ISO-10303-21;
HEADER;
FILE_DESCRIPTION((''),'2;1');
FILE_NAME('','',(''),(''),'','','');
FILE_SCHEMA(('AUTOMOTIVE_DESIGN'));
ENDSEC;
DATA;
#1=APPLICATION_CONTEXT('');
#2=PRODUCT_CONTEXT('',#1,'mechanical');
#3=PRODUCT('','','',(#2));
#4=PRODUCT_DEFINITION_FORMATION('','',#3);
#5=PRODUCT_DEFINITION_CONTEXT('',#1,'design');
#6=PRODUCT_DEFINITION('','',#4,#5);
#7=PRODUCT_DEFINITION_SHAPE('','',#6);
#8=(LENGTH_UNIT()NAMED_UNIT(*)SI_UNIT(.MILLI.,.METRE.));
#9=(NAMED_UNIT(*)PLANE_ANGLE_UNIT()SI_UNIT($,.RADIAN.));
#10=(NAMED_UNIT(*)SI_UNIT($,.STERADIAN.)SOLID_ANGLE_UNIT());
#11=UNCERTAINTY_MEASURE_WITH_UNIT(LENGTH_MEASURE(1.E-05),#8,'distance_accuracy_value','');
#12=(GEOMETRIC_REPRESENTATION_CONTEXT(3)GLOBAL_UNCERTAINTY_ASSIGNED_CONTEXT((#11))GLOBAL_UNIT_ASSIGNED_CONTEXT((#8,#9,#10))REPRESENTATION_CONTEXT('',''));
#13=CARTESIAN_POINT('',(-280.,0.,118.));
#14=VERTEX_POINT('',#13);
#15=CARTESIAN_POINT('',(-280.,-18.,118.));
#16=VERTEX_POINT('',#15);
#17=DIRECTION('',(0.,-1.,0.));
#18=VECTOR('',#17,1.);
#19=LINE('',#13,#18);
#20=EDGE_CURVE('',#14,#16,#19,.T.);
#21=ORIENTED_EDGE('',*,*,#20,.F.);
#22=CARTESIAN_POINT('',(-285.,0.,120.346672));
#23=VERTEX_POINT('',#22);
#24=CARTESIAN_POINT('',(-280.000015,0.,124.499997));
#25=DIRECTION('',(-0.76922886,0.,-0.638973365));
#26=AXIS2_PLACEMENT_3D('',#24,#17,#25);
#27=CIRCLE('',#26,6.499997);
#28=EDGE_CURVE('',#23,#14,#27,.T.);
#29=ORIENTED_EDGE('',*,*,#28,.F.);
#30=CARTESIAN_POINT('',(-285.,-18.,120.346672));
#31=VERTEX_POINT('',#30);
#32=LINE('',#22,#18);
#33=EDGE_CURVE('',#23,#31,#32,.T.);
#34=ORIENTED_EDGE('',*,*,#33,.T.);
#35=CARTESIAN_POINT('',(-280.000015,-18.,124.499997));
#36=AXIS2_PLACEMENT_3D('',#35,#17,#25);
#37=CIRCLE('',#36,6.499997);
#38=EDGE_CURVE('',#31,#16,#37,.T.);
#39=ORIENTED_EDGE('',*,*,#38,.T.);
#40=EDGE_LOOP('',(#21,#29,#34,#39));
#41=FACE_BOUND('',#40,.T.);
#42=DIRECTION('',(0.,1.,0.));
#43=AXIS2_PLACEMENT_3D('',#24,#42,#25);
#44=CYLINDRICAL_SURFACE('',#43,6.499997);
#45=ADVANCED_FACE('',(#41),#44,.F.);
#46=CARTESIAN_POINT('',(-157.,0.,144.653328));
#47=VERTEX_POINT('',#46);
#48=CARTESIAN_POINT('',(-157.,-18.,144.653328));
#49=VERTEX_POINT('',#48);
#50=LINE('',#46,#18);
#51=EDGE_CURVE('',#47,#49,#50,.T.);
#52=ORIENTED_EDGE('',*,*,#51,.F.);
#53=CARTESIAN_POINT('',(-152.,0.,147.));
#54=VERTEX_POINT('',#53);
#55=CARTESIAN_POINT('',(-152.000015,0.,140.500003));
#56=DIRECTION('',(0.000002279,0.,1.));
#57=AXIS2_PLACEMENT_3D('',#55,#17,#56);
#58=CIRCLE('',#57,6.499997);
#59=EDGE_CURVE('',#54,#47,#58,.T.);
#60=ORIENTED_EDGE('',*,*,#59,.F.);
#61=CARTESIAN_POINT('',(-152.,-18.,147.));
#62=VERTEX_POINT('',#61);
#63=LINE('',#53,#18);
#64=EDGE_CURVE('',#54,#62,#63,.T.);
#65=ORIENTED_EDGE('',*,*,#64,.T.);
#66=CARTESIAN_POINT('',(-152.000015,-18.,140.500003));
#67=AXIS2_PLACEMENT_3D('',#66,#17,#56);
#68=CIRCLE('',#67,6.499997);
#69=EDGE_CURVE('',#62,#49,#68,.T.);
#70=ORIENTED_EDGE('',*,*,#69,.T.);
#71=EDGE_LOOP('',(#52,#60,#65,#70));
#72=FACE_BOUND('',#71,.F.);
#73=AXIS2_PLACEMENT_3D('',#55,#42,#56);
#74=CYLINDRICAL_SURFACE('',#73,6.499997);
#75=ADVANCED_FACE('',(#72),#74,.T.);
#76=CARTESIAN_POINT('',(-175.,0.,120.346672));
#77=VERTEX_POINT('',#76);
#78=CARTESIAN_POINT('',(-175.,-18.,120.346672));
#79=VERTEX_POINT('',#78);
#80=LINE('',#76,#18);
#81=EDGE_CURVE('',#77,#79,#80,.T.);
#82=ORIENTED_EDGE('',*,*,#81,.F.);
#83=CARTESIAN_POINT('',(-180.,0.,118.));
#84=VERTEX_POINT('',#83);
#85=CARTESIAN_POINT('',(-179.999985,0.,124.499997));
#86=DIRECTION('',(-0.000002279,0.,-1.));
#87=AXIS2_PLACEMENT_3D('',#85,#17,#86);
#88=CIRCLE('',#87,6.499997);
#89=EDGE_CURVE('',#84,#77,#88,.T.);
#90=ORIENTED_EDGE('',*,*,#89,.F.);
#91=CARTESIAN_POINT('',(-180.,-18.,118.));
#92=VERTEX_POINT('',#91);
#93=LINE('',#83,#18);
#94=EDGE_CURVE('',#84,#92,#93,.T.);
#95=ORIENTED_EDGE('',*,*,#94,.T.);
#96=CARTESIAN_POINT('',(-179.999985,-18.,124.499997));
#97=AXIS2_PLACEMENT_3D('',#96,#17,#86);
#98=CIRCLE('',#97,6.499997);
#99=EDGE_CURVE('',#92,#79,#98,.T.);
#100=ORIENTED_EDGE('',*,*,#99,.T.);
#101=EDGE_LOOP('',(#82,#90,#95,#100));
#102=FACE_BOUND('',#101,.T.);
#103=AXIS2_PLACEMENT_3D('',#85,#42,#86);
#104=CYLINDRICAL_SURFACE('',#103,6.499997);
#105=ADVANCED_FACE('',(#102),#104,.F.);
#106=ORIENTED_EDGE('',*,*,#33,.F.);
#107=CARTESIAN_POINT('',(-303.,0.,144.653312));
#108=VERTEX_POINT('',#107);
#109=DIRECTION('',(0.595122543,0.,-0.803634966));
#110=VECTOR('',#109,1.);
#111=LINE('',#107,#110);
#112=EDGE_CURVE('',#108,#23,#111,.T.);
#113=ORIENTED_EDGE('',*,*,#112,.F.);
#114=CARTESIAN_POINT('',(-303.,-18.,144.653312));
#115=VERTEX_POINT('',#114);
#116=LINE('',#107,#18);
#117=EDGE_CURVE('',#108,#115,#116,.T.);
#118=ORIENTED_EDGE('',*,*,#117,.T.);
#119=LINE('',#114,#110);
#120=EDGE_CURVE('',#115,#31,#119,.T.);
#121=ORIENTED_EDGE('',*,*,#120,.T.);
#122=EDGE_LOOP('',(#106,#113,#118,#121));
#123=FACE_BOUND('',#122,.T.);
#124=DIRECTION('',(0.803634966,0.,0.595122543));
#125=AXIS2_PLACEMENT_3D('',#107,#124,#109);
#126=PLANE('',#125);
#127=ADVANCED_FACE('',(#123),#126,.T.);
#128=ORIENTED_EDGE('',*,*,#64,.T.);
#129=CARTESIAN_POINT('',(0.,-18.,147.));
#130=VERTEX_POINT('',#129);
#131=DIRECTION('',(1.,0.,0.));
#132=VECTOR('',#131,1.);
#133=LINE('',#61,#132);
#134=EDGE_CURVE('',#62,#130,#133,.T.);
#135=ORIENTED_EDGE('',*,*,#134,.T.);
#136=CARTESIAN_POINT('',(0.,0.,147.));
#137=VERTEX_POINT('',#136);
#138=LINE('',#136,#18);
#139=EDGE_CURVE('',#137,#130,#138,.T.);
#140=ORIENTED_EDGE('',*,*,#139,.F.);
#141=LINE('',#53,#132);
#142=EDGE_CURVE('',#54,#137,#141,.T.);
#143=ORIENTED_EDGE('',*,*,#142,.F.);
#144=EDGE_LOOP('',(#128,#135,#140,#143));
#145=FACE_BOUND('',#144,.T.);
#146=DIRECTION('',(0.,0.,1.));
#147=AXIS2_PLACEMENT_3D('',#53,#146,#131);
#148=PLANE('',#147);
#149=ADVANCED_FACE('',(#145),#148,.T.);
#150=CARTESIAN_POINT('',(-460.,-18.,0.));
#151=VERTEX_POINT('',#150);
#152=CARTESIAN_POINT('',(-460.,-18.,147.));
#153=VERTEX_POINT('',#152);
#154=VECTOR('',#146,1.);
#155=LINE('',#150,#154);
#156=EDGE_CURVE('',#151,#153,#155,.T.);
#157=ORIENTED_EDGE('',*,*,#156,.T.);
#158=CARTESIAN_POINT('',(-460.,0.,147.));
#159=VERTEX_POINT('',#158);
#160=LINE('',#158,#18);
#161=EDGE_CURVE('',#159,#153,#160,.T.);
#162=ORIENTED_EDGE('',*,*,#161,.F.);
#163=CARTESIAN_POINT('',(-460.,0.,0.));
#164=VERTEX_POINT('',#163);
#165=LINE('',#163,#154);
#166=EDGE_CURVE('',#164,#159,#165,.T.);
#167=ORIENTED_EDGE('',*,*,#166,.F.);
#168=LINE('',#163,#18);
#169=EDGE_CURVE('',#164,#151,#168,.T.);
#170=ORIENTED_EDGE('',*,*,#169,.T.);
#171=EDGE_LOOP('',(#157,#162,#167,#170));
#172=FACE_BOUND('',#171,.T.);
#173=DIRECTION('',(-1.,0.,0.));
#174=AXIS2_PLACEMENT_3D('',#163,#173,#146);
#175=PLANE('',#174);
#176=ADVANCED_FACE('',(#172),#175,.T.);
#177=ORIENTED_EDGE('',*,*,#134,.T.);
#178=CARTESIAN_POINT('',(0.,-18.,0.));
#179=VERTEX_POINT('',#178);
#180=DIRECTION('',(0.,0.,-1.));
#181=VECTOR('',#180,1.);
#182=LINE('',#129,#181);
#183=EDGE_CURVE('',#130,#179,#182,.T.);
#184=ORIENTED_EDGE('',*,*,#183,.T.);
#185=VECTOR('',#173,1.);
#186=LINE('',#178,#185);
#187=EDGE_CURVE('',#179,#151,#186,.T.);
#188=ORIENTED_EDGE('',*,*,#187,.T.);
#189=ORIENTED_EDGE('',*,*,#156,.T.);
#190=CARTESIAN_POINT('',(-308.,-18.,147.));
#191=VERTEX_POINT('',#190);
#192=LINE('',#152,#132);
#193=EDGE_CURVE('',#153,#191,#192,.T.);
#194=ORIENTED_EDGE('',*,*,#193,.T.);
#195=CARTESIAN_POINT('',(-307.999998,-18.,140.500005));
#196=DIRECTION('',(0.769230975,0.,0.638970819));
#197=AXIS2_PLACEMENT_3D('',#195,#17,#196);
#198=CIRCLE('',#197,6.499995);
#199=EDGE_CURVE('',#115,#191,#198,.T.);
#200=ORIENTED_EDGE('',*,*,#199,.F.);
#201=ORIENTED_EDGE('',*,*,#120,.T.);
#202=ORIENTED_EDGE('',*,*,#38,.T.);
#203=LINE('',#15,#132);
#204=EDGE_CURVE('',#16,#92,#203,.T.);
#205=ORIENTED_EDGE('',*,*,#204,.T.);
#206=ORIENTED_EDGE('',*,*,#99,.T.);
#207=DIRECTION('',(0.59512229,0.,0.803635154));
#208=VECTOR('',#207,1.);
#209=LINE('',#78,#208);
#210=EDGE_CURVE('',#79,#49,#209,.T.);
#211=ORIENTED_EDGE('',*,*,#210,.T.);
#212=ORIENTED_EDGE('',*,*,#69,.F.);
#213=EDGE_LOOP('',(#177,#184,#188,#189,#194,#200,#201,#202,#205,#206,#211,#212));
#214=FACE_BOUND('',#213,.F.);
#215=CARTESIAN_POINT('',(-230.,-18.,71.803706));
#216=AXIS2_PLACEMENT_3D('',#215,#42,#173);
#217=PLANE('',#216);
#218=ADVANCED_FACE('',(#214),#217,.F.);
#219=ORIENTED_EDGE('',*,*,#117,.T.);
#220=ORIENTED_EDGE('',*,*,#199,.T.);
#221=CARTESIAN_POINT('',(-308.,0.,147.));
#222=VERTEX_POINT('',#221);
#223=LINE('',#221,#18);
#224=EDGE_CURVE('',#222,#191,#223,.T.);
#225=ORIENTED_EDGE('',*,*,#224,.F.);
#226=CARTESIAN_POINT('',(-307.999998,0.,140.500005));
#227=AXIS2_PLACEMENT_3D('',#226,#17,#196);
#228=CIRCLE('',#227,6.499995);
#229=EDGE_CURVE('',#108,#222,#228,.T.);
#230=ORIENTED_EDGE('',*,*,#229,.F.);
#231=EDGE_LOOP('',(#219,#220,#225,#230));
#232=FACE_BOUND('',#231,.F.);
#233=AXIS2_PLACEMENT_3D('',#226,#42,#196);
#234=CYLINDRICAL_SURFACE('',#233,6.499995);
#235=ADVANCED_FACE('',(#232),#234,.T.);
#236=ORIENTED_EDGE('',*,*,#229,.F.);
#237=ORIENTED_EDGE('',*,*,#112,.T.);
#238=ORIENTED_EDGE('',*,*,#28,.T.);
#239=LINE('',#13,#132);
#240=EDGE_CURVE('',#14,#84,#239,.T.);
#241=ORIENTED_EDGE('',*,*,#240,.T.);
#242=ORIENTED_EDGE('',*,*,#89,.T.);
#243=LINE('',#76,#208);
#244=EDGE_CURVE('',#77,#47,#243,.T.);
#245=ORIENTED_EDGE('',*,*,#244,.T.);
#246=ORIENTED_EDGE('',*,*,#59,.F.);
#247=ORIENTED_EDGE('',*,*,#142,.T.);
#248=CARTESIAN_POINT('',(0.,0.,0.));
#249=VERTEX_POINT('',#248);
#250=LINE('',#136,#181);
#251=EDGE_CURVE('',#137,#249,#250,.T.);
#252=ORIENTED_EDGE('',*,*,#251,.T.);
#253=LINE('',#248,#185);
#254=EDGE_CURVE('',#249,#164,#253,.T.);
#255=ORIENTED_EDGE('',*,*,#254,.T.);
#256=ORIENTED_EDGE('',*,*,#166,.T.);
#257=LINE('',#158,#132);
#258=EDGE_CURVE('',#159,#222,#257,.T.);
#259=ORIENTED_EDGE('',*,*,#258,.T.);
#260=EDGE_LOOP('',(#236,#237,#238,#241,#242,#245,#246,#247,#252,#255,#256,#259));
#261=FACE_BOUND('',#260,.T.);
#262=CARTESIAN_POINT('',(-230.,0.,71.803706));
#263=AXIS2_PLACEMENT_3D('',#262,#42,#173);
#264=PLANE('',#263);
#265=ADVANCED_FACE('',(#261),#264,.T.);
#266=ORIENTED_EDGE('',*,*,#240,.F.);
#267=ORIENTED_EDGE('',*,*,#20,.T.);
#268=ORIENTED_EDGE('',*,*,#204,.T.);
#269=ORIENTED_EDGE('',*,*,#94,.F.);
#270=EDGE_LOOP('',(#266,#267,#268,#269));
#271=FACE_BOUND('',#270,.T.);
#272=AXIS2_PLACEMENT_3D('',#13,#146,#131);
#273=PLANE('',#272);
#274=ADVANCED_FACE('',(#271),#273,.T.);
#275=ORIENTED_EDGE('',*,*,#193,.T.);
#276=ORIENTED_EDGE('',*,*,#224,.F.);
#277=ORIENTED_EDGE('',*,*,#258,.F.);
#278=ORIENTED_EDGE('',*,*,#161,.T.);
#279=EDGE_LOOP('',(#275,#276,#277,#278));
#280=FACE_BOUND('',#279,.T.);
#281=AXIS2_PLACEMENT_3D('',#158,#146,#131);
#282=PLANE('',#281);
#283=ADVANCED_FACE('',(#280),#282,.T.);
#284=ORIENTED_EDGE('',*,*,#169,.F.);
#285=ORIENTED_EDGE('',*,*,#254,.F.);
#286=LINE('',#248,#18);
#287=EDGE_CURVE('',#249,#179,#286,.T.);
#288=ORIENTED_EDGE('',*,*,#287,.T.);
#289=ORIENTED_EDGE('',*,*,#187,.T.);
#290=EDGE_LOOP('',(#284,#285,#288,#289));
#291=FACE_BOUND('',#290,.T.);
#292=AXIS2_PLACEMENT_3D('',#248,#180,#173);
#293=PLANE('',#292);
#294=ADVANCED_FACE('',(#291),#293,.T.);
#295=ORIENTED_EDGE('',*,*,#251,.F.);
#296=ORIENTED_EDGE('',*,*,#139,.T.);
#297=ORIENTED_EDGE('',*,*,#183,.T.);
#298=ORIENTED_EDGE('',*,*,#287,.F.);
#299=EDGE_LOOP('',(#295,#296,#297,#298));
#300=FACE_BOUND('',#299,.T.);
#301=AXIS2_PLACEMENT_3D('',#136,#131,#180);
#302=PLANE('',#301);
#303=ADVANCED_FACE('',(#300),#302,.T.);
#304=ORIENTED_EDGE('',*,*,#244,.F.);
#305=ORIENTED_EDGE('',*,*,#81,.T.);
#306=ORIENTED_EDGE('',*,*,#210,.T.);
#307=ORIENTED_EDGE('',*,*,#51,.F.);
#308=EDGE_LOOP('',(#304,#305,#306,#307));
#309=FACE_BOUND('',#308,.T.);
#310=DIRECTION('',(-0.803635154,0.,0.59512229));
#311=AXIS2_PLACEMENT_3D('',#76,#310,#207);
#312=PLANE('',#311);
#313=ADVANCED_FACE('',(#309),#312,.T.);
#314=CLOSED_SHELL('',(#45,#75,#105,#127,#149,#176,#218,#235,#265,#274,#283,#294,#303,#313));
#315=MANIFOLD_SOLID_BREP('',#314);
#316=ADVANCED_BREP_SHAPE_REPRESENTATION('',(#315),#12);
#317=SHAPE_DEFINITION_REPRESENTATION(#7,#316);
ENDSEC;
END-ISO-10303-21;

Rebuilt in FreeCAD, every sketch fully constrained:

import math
import FreeCAD as App
import Part
import Sketcher
Q = App.Units.Quantity

doc = App.newDocument("Part")
body = doc.addObject("PartDesign::Body", "Body")

# Sketch on XZ plane
sketch1 = doc.addObject("Sketcher::SketchObject", "Sketch")
body.addObject(sketch1)
sketch1.AttachmentSupport = (doc.XZ_Plane, [""])
sketch1.MapMode = "FlatFace"
sketch1.addGeometry(Part.LineSegment(App.Vector(-460, 0, 0), App.Vector(0, 0, 0)), False)
sketch1.addGeometry(Part.LineSegment(App.Vector(0, 0, 0), App.Vector(0, 147, 0)), False)
sketch1.addGeometry(Part.LineSegment(App.Vector(0, 147, 0), App.Vector(-152, 147, 0)), False)
sketch1.addGeometry(Part.ArcOfCircle(Part.Circle(App.Vector(-152, 141, 0), App.Vector(0, 0, 1), 6), math.radians(90), math.radians(140)), False)
sketch1.addGeometry(Part.LineSegment(App.Vector(-157, 145, 0), App.Vector(-175, 120, 0)), False)
sketch1.addGeometry(Part.ArcOfCircle(Part.Circle(App.Vector(-180, 124, 0), App.Vector(0, 0, 1), 6), math.radians(-90), math.radians(-40)), False)
sketch1.addGeometry(Part.LineSegment(App.Vector(-180, 118, 0), App.Vector(-280, 118, 0)), False)
sketch1.addGeometry(Part.ArcOfCircle(Part.Circle(App.Vector(-280, 124, 0), App.Vector(0, 0, 1), 6), math.radians(-140), math.radians(-90)), False)
sketch1.addGeometry(Part.LineSegment(App.Vector(-285, 120, 0), App.Vector(-303, 145, 0)), False)
sketch1.addGeometry(Part.ArcOfCircle(Part.Circle(App.Vector(-308, 141, 0), App.Vector(0, 0, 1), 6), math.radians(40), math.radians(90)), False)
sketch1.addGeometry(Part.LineSegment(App.Vector(-308, 147, 0), App.Vector(-460, 147, 0)), False)
sketch1.addGeometry(Part.LineSegment(App.Vector(-460, 147, 0), App.Vector(-460, 0, 0)), False)
sketch1.addConstraint(Sketcher.Constraint("Coincident", 0, 2, 1, 1))
sketch1.addConstraint(Sketcher.Constraint("Coincident", 1, 2, 2, 1))
sketch1.addConstraint(Sketcher.Constraint("Coincident", 2, 2, 3, 1))
sketch1.addConstraint(Sketcher.Constraint("Coincident", 3, 2, 4, 1))
sketch1.addConstraint(Sketcher.Constraint("Coincident", 4, 2, 5, 2))
sketch1.addConstraint(Sketcher.Constraint("Coincident", 5, 1, 6, 1))
sketch1.addConstraint(Sketcher.Constraint("Coincident", 6, 2, 7, 2))
sketch1.addConstraint(Sketcher.Constraint("Coincident", 7, 1, 8, 1))
sketch1.addConstraint(Sketcher.Constraint("Coincident", 8, 2, 9, 1))
sketch1.addConstraint(Sketcher.Constraint("Tangent", 9, 2, 10, 1))
sketch1.addConstraint(Sketcher.Constraint("Coincident", 10, 2, 11, 1))
sketch1.addConstraint(Sketcher.Constraint("Coincident", 11, 2, 0, 1))
sketch1.addConstraint(Sketcher.Constraint("Horizontal", 0))
sketch1.addConstraint(Sketcher.Constraint("Vertical", 1))
sketch1.addConstraint(Sketcher.Constraint("Horizontal", 2))
sketch1.addConstraint(Sketcher.Constraint("Horizontal", 6))
sketch1.addConstraint(Sketcher.Constraint("Horizontal", 10))
sketch1.addConstraint(Sketcher.Constraint("Vertical", 11))
sketch1.addConstraint(Sketcher.Constraint("Coincident", 0, 2, -1, 1))
sketch1.addConstraint(Sketcher.Constraint("Equal", 3, 5))
sketch1.addConstraint(Sketcher.Constraint("Equal", 5, 7))
sketch1.addConstraint(Sketcher.Constraint("Equal", 7, 9))
sketch1.addConstraint(Sketcher.Constraint("Horizontal", 3, 3, 9, 3))
sketch1.addConstraint(Sketcher.Constraint("Horizontal", 4, 2, 7, 1))
sketch1.addConstraint(Sketcher.Constraint("Equal", 2, 10))
sketch1.addConstraint(Sketcher.Constraint("DistanceX", 0, 1, 0, 2, Q("460 mm")))
sketch1.addConstraint(Sketcher.Constraint("DistanceX", 2, 2, 2, 1, Q("152 mm")))
sketch1.addConstraint(Sketcher.Constraint("DistanceX", 6, 2, 6, 1, Q("100 mm")))
sketch1.addConstraint(Sketcher.Constraint("DistanceY", 1, 1, 1, 2, Q("147 mm")))
sketch1.addConstraint(Sketcher.Constraint("DistanceX", 3, 2, -1, 1, Q("157 mm")))
sketch1.addConstraint(Sketcher.Constraint("DistanceX", 4, 2, -1, 1, Q("175 mm")))
sketch1.addConstraint(Sketcher.Constraint("DistanceX", 5, 1, -1, 1, Q("180 mm")))
sketch1.addConstraint(Sketcher.Constraint("DistanceY", -1, 1, 5, 1, Q("118 mm")))
sketch1.addConstraint(Sketcher.Constraint("DistanceX", 7, 1, -1, 1, Q("285 mm")))
sketch1.addConstraint(Sketcher.Constraint("DistanceX", 8, 2, -1, 1, Q("303 mm")))
sketch1.addConstraint(Sketcher.Constraint("DistanceX", 7, 3, 3, 3, Q("128 mm")))
sketch1.addConstraint(Sketcher.Constraint("Radius", 3, Q("6.499997 mm")))
sketch1.addConstraint(Sketcher.Constraint("Distance", 8, Q("30.245872 mm")))
pad1 = doc.addObject("PartDesign::Pad", "Pad")
body.addObject(pad1)
pad1.Profile = sketch1
pad1.Length = 18

doc.recompute()
